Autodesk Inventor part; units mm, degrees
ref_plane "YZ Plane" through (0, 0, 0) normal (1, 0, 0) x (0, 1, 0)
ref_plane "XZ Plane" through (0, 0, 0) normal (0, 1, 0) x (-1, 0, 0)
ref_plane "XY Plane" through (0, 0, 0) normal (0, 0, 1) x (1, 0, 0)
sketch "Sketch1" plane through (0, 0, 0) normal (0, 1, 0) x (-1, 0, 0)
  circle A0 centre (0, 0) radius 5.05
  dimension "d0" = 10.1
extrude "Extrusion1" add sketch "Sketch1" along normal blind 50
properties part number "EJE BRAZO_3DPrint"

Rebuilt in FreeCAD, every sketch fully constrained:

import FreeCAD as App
import Part
import Sketcher

doc = App.newDocument("Part")
body = doc.addObject("PartDesign::Body", "Body")

sketch1 = body.newObject("Sketcher::SketchObject", "Sketch")
sketch1.AttachmentSupport = (doc.getObject("XZ_Plane"), [""])
sketch1.MapMode = "FlatFace"
sketch1.addGeometry(Part.Circle(App.Vector(0, 0, 0), App.Vector(0, 0, 1), 5.05), False)
sketch1.addConstraint(Sketcher.Constraint("Coincident", 0, 3, -1, 1))
sketch1.addConstraint(Sketcher.Constraint("Diameter", 0, 10.1))
pad1 = body.newObject("PartDesign::Pad", "Pad")
pad1.Profile = sketch1
pad1.Length = 50
pad1.Reversed = True

doc.recompute()
